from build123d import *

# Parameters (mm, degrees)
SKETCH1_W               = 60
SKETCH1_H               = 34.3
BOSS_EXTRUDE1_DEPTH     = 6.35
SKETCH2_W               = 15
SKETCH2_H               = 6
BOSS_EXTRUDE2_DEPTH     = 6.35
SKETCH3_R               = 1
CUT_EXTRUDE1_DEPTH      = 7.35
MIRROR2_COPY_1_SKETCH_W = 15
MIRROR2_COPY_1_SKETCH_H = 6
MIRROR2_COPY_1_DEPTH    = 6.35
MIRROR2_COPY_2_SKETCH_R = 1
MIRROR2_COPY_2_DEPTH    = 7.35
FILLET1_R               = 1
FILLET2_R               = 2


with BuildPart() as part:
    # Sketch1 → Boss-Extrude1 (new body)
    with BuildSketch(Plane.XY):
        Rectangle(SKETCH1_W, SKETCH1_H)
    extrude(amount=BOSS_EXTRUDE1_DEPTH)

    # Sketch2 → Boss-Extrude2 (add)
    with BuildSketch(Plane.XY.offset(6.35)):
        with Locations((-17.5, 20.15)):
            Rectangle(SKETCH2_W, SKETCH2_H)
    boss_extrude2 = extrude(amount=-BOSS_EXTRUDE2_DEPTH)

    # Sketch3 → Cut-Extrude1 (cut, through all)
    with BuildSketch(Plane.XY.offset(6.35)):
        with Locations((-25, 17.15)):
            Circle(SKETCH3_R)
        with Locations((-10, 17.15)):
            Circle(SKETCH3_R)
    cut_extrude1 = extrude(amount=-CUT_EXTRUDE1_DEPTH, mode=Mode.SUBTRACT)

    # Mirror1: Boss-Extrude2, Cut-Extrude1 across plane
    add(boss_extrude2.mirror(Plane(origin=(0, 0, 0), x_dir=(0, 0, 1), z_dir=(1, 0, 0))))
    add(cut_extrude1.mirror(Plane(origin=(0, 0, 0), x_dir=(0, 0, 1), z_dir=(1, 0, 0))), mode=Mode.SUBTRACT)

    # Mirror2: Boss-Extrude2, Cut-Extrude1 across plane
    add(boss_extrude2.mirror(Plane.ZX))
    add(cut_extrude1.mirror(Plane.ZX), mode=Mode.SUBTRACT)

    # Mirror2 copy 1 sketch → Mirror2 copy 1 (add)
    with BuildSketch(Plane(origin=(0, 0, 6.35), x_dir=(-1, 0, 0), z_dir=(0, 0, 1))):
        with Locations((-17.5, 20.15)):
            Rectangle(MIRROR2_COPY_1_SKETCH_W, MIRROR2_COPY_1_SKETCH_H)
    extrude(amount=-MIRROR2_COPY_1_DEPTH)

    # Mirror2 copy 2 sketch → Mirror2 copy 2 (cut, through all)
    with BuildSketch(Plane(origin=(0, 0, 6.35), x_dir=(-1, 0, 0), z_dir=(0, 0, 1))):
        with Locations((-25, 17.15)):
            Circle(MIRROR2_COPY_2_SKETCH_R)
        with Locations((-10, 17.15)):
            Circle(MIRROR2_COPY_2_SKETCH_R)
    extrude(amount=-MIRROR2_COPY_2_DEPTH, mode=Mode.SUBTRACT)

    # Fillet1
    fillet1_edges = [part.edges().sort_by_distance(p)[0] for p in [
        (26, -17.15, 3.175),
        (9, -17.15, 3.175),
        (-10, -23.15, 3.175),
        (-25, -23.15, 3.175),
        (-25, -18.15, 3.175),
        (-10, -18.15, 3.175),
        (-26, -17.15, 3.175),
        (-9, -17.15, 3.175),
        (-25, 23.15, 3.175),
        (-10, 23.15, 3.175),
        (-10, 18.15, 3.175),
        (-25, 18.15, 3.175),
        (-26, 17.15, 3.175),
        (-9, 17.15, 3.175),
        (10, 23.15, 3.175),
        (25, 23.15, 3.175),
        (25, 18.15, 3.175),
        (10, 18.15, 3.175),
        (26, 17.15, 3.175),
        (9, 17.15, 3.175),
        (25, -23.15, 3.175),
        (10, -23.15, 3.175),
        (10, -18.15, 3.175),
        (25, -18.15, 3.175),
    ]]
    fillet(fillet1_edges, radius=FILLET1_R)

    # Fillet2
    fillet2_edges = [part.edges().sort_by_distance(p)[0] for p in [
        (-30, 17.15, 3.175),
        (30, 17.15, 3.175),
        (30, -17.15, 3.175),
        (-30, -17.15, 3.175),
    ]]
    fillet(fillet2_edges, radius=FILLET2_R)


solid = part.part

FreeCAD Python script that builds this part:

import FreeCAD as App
import Part
import Sketcher

V = App.Vector


def edges_at(feature, points):
    """Names of the edges that pass closest to the given points."""
    edges = feature.Shape.Edges
    near = lambda p: min(range(len(edges)), key=lambda i: edges[i].distToShape(Part.Vertex(*p))[0])
    return sorted({f"Edge{near(p) + 1}" for p in points})

doc = App.newDocument("Part")
params = doc.addObject("Spreadsheet::Sheet", "Params")
for row, (alias, value) in enumerate([
    ("sketch1_width", "60 mm"),
    ("sketch1_height", "34.3 mm"),
    ("pad1_length", "6.35 mm"),
    ("sketch2_width", "15 mm"),
    ("sketch2_height", "6 mm"),
    ("pad2_length", "6.35 mm"),
    ("sketch3_diameter", "2 mm"),
    ("sketch4_width", "15 mm"),
    ("sketch4_height", "6 mm"),
    ("pad3_length", "6.35 mm"),
    ("sketch5_diameter", "2 mm"),
    ("fillet_radius", "1 mm"),
    ("fillet2_radius", "2 mm"),
], start=1):
    params.set(f"A{row}", alias)
    params.set(f"B{row}", "=" + value)
    params.setAlias(f"B{row}", alias)

body = doc.addObject("PartDesign::Body", "Body")

# Sketch on XY plane
sketch1 = body.newObject("Sketcher::SketchObject", "Sketch")
sketch1.AttachmentSupport = (doc.getObject("XY_Plane"), [""])
sketch1.MapMode = "FlatFace"
sketch1.addGeometry([
    Part.LineSegment(V(-30, 17, 0), V(-30, -17, 0)),
    Part.LineSegment(V(-30, -17, 0), V(30, -17, 0)),
    Part.LineSegment(V(30, -17, 0), V(30, 17, 0)),
    Part.LineSegment(V(30, 17, 0), V(-30, 17, 0)),
], False)
sketch1.addConstraint([
    Sketcher.Constraint("Coincident", 0, 2, 1, 1),
    Sketcher.Constraint("Coincident", 1, 2, 2, 1),
    Sketcher.Constraint("Coincident", 2, 2, 3, 1),
    Sketcher.Constraint("Coincident", 3, 2, 0, 1),
    Sketcher.Constraint("Vertical", 0),
    Sketcher.Constraint("Horizontal", 1),
    Sketcher.Constraint("Vertical", 2),
    Sketcher.Constraint("Horizontal", 3),
    Sketcher.Constraint("Symmetric", 0, 2, 2, 2, -1, 1),
    Sketcher.Constraint("DistanceX", 1, 1, 1, 2, 60.0),
    Sketcher.Constraint("DistanceY", 0, 2, 0, 1, 34.3),
])
sketch1.setExpression("Constraints[9]", "Params.sketch1_width")
sketch1.setExpression("Constraints[10]", "Params.sketch1_height")
pad1 = body.newObject("PartDesign::Pad", "Pad")
pad1.Profile = sketch1
pad1.setExpression("Length", "Params.pad1_length")

# Sketch on XY plane
sketch2 = body.newObject("Sketcher::SketchObject", "Sketch001")
sketch2.AttachmentSupport = (doc.getObject("XY_Plane"), [""])
sketch2.MapMode = "FlatFace"
sketch2.AttachmentOffset = App.Placement(V(0, 0, 6.35), App.Rotation())
sketch2.addGeometry([
    Part.LineSegment(V(-25, 23, 0), V(-25, 17, 0)),
    Part.LineSegment(V(-25, 17, 0), V(-10, 17, 0)),
    Part.LineSegment(V(-10, 17, 0), V(-10, 23, 0)),
    Part.LineSegment(V(-10, 23, 0), V(-25, 23, 0)),
], False)
sketch2.addConstraint([
    Sketcher.Constraint("Coincident", 0, 2, 1, 1),
    Sketcher.Constraint("Coincident", 1, 2, 2, 1),
    Sketcher.Constraint("Coincident", 2, 2, 3, 1),
    Sketcher.Constraint("Coincident", 3, 2, 0, 1),
    Sketcher.Constraint("Vertical", 0),
    Sketcher.Constraint("Horizontal", 1),
    Sketcher.Constraint("Vertical", 2),
    Sketcher.Constraint("Horizontal", 3),
    Sketcher.Constraint("DistanceX", 1, 1, 1, 2, 15.0),
    Sketcher.Constraint("DistanceY", 0, 2, 0, 1, 6.0),
    Sketcher.Constraint("DistanceX", 0, 2, -1, 1, 25.0),
    Sketcher.Constraint("DistanceY", -1, 1, 0, 2, 17.15),
])
sketch2.setExpression("Constraints[8]", "Params.sketch2_width")
sketch2.setExpression("Constraints[9]", "Params.sketch2_height")
pad2 = body.newObject("PartDesign::Pad", "Pad001")
pad2.Profile = sketch2
pad2.setExpression("Length", "Params.pad2_length")
pad2.Reversed = True

# Sketch on XY plane
sketch3 = body.newObject("Sketcher::SketchObject", "Sketch002")
sketch3.AttachmentSupport = (doc.getObject("XY_Plane"), [""])
sketch3.MapMode = "FlatFace"
sketch3.AttachmentOffset = App.Placement(V(0, 0, 6.35), App.Rotation())
sketch3.addGeometry([
    Part.Circle(V(-25, 17.1, 0), V(0, 0, 1), 1),
    Part.Circle(V(-10, 17.1, 0), V(0, 0, 1), 1),
], False)
sketch3.addConstraint([
    Sketcher.Constraint("Equal", 0, 1),
    Sketcher.Constraint("Horizontal", 0, 3, 1, 3),
    Sketcher.Constraint("Diameter", 0, 2.0),
    Sketcher.Constraint("DistanceX", 0, 3, -1, 1, 25.0),
    Sketcher.Constraint("DistanceX", 1, 3, -1, 1, 10.0),
    Sketcher.Constraint("DistanceY", -1, 1, 0, 3, 17.15),
])
sketch3.setExpression("Constraints[2]", "Params.sketch3_diameter")
pocket1 = body.newObject("PartDesign::Pocket", "Pocket")
pocket1.Profile = sketch3
pocket1.Type = "ThroughAll"
doc.recompute()

mirrored = body.newObject("PartDesign::Mirrored", "Mirrored")
mirrored.Originals = [pad2, pocket1]
mirrored.MirrorPlane = (doc.getObject("YZ_Plane"), [""])
body.Tip = mirrored
doc.recompute()

mirrored2 = body.newObject("PartDesign::Mirrored", "Mirrored001")
mirrored2.Originals = [pad2, pocket1]
mirrored2.MirrorPlane = (doc.getObject("XZ_Plane"), [""])
body.Tip = mirrored2

# Sketch on XY plane
sketch4 = body.newObject("Sketcher::SketchObject", "Sketch003")
sketch4.AttachmentSupport = (doc.getObject("XY_Plane"), [""])
sketch4.MapMode = "FlatFace"
sketch4.AttachmentOffset = App.Placement(V(0, 0, 6.35), App.Rotation())
sketch4.addGeometry([
    Part.LineSegment(V(25, -23, 0), V(25, -17, 0)),
    Part.LineSegment(V(25, -17, 0), V(10, -17, 0)),
    Part.LineSegment(V(10, -17, 0), V(10, -23, 0)),
    Part.LineSegment(V(10, -23, 0), V(25, -23, 0)),
], False)
sketch4.addConstraint([
    Sketcher.Constraint("Coincident", 0, 2, 1, 1),
    Sketcher.Constraint("Coincident", 1, 2, 2, 1),
    Sketcher.Constraint("Coincident", 2, 2, 3, 1),
    Sketcher.Constraint("Coincident", 3, 2, 0, 1),
    Sketcher.Constraint("Vertical", 0),
    Sketcher.Constraint("Horizontal", 1),
    Sketcher.Constraint("Vertical", 2),
    Sketcher.Constraint("Horizontal", 3),
    Sketcher.Constraint("DistanceX", 1, 2, 1, 1, 15.0),
    Sketcher.Constraint("DistanceY", 0, 1, 0, 2, 6.0),
    Sketcher.Constraint("DistanceX", -1, 1, 0, 2, 25.0),
    Sketcher.Constraint("DistanceY", 0, 2, -1, 1, 17.15),
])
sketch4.setExpression("Constraints[8]", "Params.sketch4_width")
sketch4.setExpression("Constraints[9]", "Params.sketch4_height")
pad3 = body.newObject("PartDesign::Pad", "Pad002")
pad3.Profile = sketch4
pad3.setExpression("Length", "Params.pad3_length")
pad3.Reversed = True

# Sketch on XY plane
sketch5 = body.newObject("Sketcher::SketchObject", "Sketch004")
sketch5.AttachmentSupport = (doc.getObject("XY_Plane"), [""])
sketch5.MapMode = "FlatFace"
sketch5.AttachmentOffset = App.Placement(V(0, 0, 6.35), App.Rotation())
sketch5.addGeometry([
    Part.Circle(V(25, -17.1, 0), V(0, 0, 1), 1),
    Part.Circle(V(10, -17.1, 0), V(0, 0, 1), 1),
], False)
sketch5.addConstraint([
    Sketcher.Constraint("Equal", 0, 1),
    Sketcher.Constraint("Horizontal", 0, 3, 1, 3),
    Sketcher.Constraint("Diameter", 0, 2.0),
    Sketcher.Constraint("DistanceX", -1, 1, 0, 3, 25.0),
    Sketcher.Constraint("DistanceX", -1, 1, 1, 3, 10.0),
    Sketcher.Constraint("DistanceY", 0, 3, -1, 1, 17.15),
])
sketch5.setExpression("Constraints[2]", "Params.sketch5_diameter")
pocket2 = body.newObject("PartDesign::Pocket", "Pocket001")
pocket2.Profile = sketch5
pocket2.Type = "ThroughAll"
doc.recompute()

fillet = body.newObject("PartDesign::Fillet", "Fillet")
fillet.Base = (pocket2, edges_at(pocket2, [
    (26, -17.15, 3.175),
    (9, -17.15, 3.175),
    (-10, -23.15, 3.175),
    (-25, -23.15, 3.175),
    (-25, -18.15, 3.175),
    (-10, -18.15, 3.175),
    (-26, -17.15, 3.175),
    (-9, -17.15, 3.175),
    (-25, 23.15, 3.175),
    (-10, 23.15, 3.175),
    (-10, 18.15, 3.175),
    (-25, 18.15, 3.175),
    (-26, 17.15, 3.175),
    (-9, 17.15, 3.175),
    (10, 23.15, 3.175),
    (25, 23.15, 3.175),
    (25, 18.15, 3.175),
    (10, 18.15, 3.175),
    (26, 17.15, 3.175),
    (9, 17.15, 3.175),
    (25, -23.15, 3.175),
    (10, -23.15, 3.175),
    (10, -18.15, 3.175),
    (25, -18.15, 3.175),
]))
fillet.setExpression("Radius", "Params.fillet_radius")
doc.recompute()

fillet2 = body.newObject("PartDesign::Fillet", "Fillet001")
fillet2.Base = (fillet, edges_at(fillet, [
    (-30, 17.15, 3.175),
    (30, 17.15, 3.175),
    (30, -17.15, 3.175),
    (-30, -17.15, 3.175),
]))
fillet2.setExpression("Radius", "Params.fillet2_radius")

doc.recompute()
